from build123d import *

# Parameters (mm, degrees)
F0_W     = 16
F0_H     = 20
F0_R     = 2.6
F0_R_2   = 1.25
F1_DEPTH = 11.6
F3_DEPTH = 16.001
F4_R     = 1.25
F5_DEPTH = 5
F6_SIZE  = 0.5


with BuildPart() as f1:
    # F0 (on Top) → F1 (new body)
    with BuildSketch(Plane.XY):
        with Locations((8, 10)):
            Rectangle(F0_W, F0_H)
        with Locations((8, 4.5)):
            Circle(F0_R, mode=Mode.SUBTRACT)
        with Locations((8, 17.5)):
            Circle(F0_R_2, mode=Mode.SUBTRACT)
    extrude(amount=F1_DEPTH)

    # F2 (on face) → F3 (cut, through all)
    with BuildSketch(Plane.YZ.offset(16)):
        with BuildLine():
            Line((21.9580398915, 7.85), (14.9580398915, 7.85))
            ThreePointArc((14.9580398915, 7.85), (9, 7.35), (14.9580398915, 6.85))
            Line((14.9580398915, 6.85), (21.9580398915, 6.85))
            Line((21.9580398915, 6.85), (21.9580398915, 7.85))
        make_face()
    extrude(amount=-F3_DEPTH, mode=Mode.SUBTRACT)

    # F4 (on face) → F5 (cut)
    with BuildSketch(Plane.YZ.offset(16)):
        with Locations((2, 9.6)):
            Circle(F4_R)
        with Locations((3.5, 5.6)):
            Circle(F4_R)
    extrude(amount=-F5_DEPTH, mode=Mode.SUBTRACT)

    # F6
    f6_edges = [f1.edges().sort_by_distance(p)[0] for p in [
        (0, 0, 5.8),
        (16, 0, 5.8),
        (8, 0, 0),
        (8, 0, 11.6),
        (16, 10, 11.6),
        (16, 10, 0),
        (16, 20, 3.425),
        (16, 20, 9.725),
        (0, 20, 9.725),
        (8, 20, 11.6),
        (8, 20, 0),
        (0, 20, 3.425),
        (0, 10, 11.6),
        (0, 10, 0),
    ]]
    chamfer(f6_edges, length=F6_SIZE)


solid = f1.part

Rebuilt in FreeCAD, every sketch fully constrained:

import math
import FreeCAD as App
import Part
import Sketcher

V = App.Vector
Q = App.Units.Quantity


def edges_at(feature, points):
    """Names of the edges that pass closest to the given points."""
    edges = feature.Shape.Edges
    near = lambda p: min(range(len(edges)), key=lambda i: edges[i].distToShape(Part.Vertex(*p))[0])
    return sorted({f"Edge{near(p) + 1}" for p in points})


def add_polygon(sketch, points):
    """Adds a closed chain of lines whose ends are joined by coincident constraints."""
    first, n = sketch.GeometryCount, len(points)
    for a, b in zip(points, points[1:] + points[:1]):
        sketch.addGeometry(Part.LineSegment(App.Vector(*a, 0), App.Vector(*b, 0)), False)
    for i in range(n):
        sketch.addConstraint(Sketcher.Constraint("Coincident", first + i, 2, first + (i + 1) % n, 1))

doc = App.newDocument("Part")
body = doc.addObject("PartDesign::Body", "Body")

sketch1 = doc.addObject("Sketcher::SketchObject", "Sketch")
body.addObject(sketch1)
sketch1.AttachmentSupport = (doc.XY_Plane, [""])
sketch1.MapMode = "FlatFace"
add_polygon(sketch1, [(0, 20), (0, 0), (16, 0), (16, 20)])
sketch1.addGeometry(Part.Circle(V(8, 4.5, 0), V(0, 0, 1), 2.6), False)
sketch1.addGeometry(Part.Circle(V(8, 17.5, 0), V(0, 0, 1), 1.2), False)
sketch1.addConstraint([
    Sketcher.Constraint("Vertical", 0),
    Sketcher.Constraint("Horizontal", 1),
    Sketcher.Constraint("Vertical", 2),
    Sketcher.Constraint("Horizontal", 3),
    Sketcher.Constraint("Coincident", 0, 2, -1, 1),
    Sketcher.Constraint("Vertical", 4, 3, 5, 3),
    Sketcher.Constraint("Diameter", 4, Q("5.2 mm")),
    Sketcher.Constraint("Diameter", 5, Q("2.5 mm")),
    Sketcher.Constraint("DistanceX", 1, 1, 1, 2, Q("16 mm")),
    Sketcher.Constraint("DistanceY", 0, 2, 0, 1, Q("20 mm")),
    Sketcher.Constraint("DistanceX", -1, 1, 4, 3, Q("8 mm")),
    Sketcher.Constraint("DistanceY", 4, 3, 5, 3, Q("13 mm")),
    Sketcher.Constraint("DistanceY", -1, 1, 4, 3, Q("4.5 mm")),
])
pad1 = doc.addObject("PartDesign::Pad", "Pad")
body.addObject(pad1)
pad1.Profile = sketch1
pad1.Length = 11.6

sketch2 = doc.addObject("Sketcher::SketchObject", "Sketch001")
body.addObject(sketch2)
sketch2.AttachmentSupport = (doc.YZ_Plane, [""])
sketch2.MapMode = "FlatFace"
sketch2.AttachmentOffset = App.Placement(V(0, 0, 16), App.Rotation())
sketch2.addGeometry([
    Part.LineSegment(V(22, 7.8, 0), V(15, 7.8, 0)),
    Part.ArcOfCircle(Part.Circle(V(12, 7.3, 0), V(0, 0, 1), 3), math.radians(10), math.radians(350)),
    Part.LineSegment(V(15, 6.8, 0), V(22, 6.8, 0)),
    Part.LineSegment(V(22, 6.8, 0), V(22, 7.8, 0)),
], False)
sketch2.addConstraint([
    Sketcher.Constraint("Coincident", 0, 2, 1, 1),
    Sketcher.Constraint("Coincident", 1, 2, 2, 1),
    Sketcher.Constraint("Coincident", 2, 2, 3, 1),
    Sketcher.Constraint("Coincident", 3, 2, 0, 1),
    Sketcher.Constraint("Horizontal", 0),
    Sketcher.Constraint("Horizontal", 2),
    Sketcher.Constraint("Vertical", 3),
    Sketcher.Constraint("Vertical", 0, 2, 1, 2),
    Sketcher.Constraint("Radius", 1, Q("3 mm")),
    Sketcher.Constraint("DistanceX", 0, 2, 0, 1, Q("7 mm")),
    Sketcher.Constraint("DistanceY", 3, 1, 3, 2, Q("1 mm")),
    Sketcher.Constraint("DistanceX", -1, 1, 1, 3, Q("12 mm")),
    Sketcher.Constraint("DistanceY", -1, 1, 1, 3, Q("7.35 mm")),
])
pocket1 = doc.addObject("PartDesign::Pocket", "Pocket")
body.addObject(pocket1)
pocket1.Profile = sketch2
pocket1.Type = "ThroughAll"

sketch3 = doc.addObject("Sketcher::SketchObject", "Sketch002")
body.addObject(sketch3)
sketch3.AttachmentSupport = (doc.YZ_Plane, [""])
sketch3.MapMode = "FlatFace"
sketch3.AttachmentOffset = App.Placement(V(0, 0, 16), App.Rotation())
sketch3.addGeometry([
    Part.Circle(V(2, 9.6, 0), V(0, 0, 1), 1.2),
    Part.Circle(V(3.5, 5.6, 0), V(0, 0, 1), 1.2),
], False)
sketch3.addConstraint([
    Sketcher.Constraint("Equal", 0, 1),
    Sketcher.Constraint("Diameter", 0, Q("2.5 mm")),
    Sketcher.Constraint("DistanceX", -1, 1, 0, 3, Q("2 mm")),
    Sketcher.Constraint("DistanceY", 1, 3, 0, 3, Q("4 mm")),
    Sketcher.Constraint("DistanceY", -1, 1, 0, 3, Q("9.6 mm")),
    Sketcher.Constraint("DistanceX", -1, 1, 1, 3, Q("3.5 mm")),
])
pocket2 = doc.addObject("PartDesign::Pocket", "Pocket001")
body.addObject(pocket2)
pocket2.Profile = sketch3
pocket2.Length = 5
doc.recompute()

chamfer = doc.addObject("PartDesign::Chamfer", "Chamfer")
body.addObject(chamfer)
chamfer.Base = (pocket2, edges_at(pocket2, [
    (0, 0, 5.8),
    (16, 0, 5.8),
    (8, 0, 0),
    (8, 0, 11.6),
    (16, 10, 11.6),
    (16, 10, 0),
    (16, 20, 3.425),
    (16, 20, 9.725),
    (0, 20, 9.725),
    (8, 20, 11.6),
    (8, 20, 0),
    (0, 20, 3.425),
    (0, 10, 11.6),
    (0, 10, 0),
]))
chamfer.Size = 0.5

doc.recompute()
